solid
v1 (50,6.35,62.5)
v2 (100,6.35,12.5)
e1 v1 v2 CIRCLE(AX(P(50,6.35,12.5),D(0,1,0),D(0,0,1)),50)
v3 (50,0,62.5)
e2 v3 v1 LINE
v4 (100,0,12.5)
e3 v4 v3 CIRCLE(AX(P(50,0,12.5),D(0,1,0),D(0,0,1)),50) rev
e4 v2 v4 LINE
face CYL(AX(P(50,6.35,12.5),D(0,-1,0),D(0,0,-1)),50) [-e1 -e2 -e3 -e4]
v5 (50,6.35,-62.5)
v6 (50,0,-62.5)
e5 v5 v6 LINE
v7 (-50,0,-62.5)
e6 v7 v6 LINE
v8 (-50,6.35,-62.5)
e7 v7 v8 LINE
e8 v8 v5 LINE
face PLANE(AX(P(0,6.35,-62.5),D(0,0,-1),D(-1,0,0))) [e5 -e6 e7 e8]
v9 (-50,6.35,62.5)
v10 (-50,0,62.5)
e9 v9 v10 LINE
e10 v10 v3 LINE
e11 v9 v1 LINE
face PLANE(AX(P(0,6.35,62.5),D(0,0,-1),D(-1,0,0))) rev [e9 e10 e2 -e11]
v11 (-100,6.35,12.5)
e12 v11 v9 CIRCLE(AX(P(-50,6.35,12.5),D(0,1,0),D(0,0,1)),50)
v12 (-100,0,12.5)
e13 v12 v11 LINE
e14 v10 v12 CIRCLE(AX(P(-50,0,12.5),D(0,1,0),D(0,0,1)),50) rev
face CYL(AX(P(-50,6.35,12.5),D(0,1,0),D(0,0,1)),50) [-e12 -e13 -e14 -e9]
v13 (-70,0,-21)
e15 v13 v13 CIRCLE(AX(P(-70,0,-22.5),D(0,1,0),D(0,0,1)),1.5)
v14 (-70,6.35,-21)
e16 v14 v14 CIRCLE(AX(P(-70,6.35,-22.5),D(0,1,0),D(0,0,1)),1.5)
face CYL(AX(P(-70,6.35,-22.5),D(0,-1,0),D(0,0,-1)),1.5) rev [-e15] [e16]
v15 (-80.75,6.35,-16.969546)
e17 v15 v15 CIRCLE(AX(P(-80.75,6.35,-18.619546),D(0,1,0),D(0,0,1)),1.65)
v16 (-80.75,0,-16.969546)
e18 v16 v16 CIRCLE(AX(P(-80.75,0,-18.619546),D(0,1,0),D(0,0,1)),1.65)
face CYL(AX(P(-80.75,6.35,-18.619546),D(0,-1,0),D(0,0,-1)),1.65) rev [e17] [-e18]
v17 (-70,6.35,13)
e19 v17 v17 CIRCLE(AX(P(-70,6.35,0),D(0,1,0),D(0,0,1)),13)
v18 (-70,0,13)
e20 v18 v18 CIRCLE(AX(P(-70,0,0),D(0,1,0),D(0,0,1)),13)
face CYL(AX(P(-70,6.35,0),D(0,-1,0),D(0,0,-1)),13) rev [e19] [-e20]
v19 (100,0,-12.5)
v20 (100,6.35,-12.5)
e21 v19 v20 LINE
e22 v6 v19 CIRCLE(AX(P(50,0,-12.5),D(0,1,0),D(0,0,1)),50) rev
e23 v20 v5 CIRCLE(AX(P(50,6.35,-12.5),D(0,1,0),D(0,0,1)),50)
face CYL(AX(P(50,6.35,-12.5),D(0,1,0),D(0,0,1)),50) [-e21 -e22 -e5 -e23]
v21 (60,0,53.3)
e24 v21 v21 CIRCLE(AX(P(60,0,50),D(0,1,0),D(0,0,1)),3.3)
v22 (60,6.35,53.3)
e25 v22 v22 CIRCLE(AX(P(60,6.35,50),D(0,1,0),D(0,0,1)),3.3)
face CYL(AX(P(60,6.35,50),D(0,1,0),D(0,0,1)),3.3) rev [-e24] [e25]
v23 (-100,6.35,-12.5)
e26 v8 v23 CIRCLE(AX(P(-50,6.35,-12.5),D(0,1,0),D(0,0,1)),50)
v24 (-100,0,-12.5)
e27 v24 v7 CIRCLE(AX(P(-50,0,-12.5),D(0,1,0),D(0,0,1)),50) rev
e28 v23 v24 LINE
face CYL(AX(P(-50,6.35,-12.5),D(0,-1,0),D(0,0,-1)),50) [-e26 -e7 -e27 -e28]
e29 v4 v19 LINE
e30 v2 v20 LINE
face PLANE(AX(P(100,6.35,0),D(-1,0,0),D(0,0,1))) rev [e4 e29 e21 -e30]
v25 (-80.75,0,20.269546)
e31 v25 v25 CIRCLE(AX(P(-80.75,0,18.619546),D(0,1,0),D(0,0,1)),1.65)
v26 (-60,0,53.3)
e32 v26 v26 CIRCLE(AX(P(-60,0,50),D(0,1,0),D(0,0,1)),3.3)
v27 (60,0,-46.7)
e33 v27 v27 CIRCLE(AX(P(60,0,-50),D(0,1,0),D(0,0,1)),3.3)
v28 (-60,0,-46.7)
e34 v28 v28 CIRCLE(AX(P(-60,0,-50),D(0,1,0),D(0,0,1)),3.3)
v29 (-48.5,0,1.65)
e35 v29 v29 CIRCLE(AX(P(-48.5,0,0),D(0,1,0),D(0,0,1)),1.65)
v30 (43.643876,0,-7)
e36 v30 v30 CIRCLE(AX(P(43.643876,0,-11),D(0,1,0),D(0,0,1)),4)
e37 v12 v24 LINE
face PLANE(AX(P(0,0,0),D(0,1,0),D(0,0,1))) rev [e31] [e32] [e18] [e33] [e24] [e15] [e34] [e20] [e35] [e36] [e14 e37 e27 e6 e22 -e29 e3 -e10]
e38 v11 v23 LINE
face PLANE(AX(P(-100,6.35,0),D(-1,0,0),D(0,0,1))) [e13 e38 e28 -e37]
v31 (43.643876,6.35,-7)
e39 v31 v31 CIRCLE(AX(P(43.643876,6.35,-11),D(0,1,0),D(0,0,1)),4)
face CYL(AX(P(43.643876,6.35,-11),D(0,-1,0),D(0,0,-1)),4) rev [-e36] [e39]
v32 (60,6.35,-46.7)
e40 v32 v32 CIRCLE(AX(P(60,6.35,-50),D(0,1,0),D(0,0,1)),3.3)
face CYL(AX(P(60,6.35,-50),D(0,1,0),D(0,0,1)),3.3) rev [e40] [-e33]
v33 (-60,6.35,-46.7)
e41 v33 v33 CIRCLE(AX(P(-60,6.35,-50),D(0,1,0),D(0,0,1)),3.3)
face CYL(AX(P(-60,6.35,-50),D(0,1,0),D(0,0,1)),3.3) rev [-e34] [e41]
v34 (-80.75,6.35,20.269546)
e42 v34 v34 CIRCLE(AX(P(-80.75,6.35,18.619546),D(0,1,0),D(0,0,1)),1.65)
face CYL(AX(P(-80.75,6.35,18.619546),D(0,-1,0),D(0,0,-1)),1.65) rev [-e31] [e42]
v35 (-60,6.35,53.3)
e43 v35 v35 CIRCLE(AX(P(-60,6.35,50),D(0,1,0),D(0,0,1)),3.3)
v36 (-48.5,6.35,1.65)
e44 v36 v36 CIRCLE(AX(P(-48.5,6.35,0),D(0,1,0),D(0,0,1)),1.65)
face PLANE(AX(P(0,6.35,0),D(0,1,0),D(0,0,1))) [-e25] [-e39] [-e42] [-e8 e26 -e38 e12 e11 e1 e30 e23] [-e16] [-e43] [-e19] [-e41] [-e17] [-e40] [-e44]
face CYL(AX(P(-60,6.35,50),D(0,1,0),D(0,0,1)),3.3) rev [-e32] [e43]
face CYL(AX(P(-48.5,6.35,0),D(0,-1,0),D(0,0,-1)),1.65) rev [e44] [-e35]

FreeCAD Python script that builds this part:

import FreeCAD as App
import Part
import Sketcher
from FreeCAD import Vector


def edges_at(feature, points):
    """Names of the edges that pass closest to the given points."""
    edges = feature.Shape.Edges
    near = lambda p: min(range(len(edges)), key=lambda i: edges[i].distToShape(Part.Vertex(*p))[0])
    return sorted({f"Edge{near(p) + 1}" for p in points})


def add_polygon(sketch, points):
    """Adds a closed chain of lines whose ends are joined by coincident constraints."""
    first, n = sketch.GeometryCount, len(points)
    for a, b in zip(points, points[1:] + points[:1]):
        sketch.addGeometry(Part.LineSegment(App.Vector(*a, 0), App.Vector(*b, 0)), False)
    for i in range(n):
        sketch.addConstraint(Sketcher.Constraint("Coincident", first + i, 2, first + (i + 1) % n, 1))

doc = App.newDocument("Part")
body = doc.addObject("PartDesign::Body", "Body")

# Sketch on XZ plane
sketch1 = body.newObject("Sketcher::SketchObject", "Sketch")
sketch1.AttachmentSupport = (doc.getObject("XZ_Plane"), [""])
sketch1.MapMode = "FlatFace"
add_polygon(sketch1, [(-100, -62.5), (-100, 62.5), (100, 62.5), (100, -62.5)])  # lines 0-3
sketch1.addGeometry(Part.Circle(Vector(-80.8, 18.6, 0), Vector(0, 0, 1), 1.6), False)  # 4
sketch1.addGeometry(Part.Circle(Vector(-70, 0, 0), Vector(0, 0, 1), 13), False)  # 5
sketch1.addGeometry(Part.Circle(Vector(-48.5, 0, 0), Vector(0, 0, 1), 1.6), False)  # 6
sketch1.addGeometry(Part.Circle(Vector(-80.8, -18.6, 0), Vector(0, 0, 1), 1.6), False)  # 7
sketch1.addGeometry(Part.Circle(Vector(-70, -22.5, 0), Vector(0, 0, 1), 1.5), False)  # 8
sketch1.addGeometry(Part.Circle(Vector(43.6, -11, 0), Vector(0, 0, 1), 4), False)  # 9
sketch1.addConstraint([
    Sketcher.Constraint("Vertical", 0),
    Sketcher.Constraint("Horizontal", 1),
    Sketcher.Constraint("Vertical", 2),
    Sketcher.Constraint("Horizontal", 3),
    Sketcher.Constraint("Equal", 4, 6),
    Sketcher.Constraint("Equal", 6, 7),
    Sketcher.Constraint("Symmetric", 0, 2, 2, 2, -1, 1),
    Sketcher.Constraint("Symmetric", 4, 3, 7, 3, -1),
    Sketcher.Constraint("PointOnObject", 5, 3, -1),
    Sketcher.Constraint("PointOnObject", 6, 3, -1),
    Sketcher.Constraint("Vertical", 5, 3, 8, 3),
    Sketcher.Constraint("Diameter", 5, 26.0),
    Sketcher.Constraint("Diameter", 8, 3.0),
    Sketcher.Constraint("Diameter", 9, 8.0),
    Sketcher.Constraint("Diameter", 4, 3.3),
    Sketcher.Constraint("DistanceX", 1, 1, 1, 2, 200.0),
    Sketcher.Constraint("DistanceY", 0, 1, 0, 2, 125.0),
    Sketcher.Constraint("DistanceX", 5, 3, -1, 1, 70.0),
    Sketcher.Constraint("DistanceY", 9, 3, -1, 1, 11.0),
    Sketcher.Constraint("DistanceY", 8, 3, 0, 2, 85.0),
    Sketcher.Constraint("DistanceX", 6, 3, -1, 1, 48.5),
    Sketcher.Constraint("DistanceX", 4, 3, -1, 1, 80.75),
    Sketcher.Constraint("DistanceY", -1, 1, 4, 3, 18.619546),
    Sketcher.Constraint("DistanceX", -1, 1, 9, 3, 43.643876),
])
pad1 = body.newObject("PartDesign::Pad", "Pad")
pad1.Profile = sketch1
pad1.Length = 6.35
pad1.Reversed = True
doc.recompute()

fillet = body.newObject("PartDesign::Fillet", "Fillet")
fillet.Base = (pad1, edges_at(pad1, [
    (-100, 3.175, 62.5),
    (-100, 3.175, -62.5),
    (100, 3.175, -62.5),
    (100, 3.175, 62.5),
]))
fillet.Radius = 50

# Sketch on XZ plane
sketch2 = body.newObject("Sketcher::SketchObject", "Sketch001")
sketch2.AttachmentSupport = (doc.getObject("XZ_Plane"), [""])
sketch2.MapMode = "FlatFace"
sketch2.AttachmentOffset = App.Placement(Vector(0, 0, -6.35), App.Rotation())
sketch2.addGeometry([
    Part.Circle(Vector(60, -50, 0), Vector(0, 0, 1), 3.3),
    Part.Circle(Vector(-60, 50, 0), Vector(0, 0, 1), 3.3),
    Part.Circle(Vector(-60, -50, 0), Vector(0, 0, 1), 3.3),
    Part.Circle(Vector(60, 50, 0), Vector(0, 0, 1), 3.3),
], False)
sketch2.addConstraint([
    Sketcher.Constraint("Equal", 0, 1),
    Sketcher.Constraint("Equal", 1, 2),
    Sketcher.Constraint("Equal", 2, 3),
    Sketcher.Constraint("Symmetric", 0, 3, 1, 3, -1, 1),
    Sketcher.Constraint("Symmetric", 2, 3, 3, 3, -1, 1),
    Sketcher.Constraint("Symmetric", 0, 3, 2, 3, -2),
    Sketcher.Constraint("Diameter", 0, 6.6),
    Sketcher.Constraint("DistanceX", -1, 1, 0, 3, 60.0),
    Sketcher.Constraint("DistanceY", 0, 3, -1, 1, 50.0),
])
doc.recompute()
hole = body.newObject("PartDesign::Hole", "Hole")
hole.Profile = sketch2
hole.ThreadType = "None"
hole.Diameter = 6.6
hole.DepthType = "Dimension"
hole.Depth = 15
hole.DrillPoint = "Angled"
hole.DrillPointAngle = 118
hole.Reversed = True

doc.recompute()
